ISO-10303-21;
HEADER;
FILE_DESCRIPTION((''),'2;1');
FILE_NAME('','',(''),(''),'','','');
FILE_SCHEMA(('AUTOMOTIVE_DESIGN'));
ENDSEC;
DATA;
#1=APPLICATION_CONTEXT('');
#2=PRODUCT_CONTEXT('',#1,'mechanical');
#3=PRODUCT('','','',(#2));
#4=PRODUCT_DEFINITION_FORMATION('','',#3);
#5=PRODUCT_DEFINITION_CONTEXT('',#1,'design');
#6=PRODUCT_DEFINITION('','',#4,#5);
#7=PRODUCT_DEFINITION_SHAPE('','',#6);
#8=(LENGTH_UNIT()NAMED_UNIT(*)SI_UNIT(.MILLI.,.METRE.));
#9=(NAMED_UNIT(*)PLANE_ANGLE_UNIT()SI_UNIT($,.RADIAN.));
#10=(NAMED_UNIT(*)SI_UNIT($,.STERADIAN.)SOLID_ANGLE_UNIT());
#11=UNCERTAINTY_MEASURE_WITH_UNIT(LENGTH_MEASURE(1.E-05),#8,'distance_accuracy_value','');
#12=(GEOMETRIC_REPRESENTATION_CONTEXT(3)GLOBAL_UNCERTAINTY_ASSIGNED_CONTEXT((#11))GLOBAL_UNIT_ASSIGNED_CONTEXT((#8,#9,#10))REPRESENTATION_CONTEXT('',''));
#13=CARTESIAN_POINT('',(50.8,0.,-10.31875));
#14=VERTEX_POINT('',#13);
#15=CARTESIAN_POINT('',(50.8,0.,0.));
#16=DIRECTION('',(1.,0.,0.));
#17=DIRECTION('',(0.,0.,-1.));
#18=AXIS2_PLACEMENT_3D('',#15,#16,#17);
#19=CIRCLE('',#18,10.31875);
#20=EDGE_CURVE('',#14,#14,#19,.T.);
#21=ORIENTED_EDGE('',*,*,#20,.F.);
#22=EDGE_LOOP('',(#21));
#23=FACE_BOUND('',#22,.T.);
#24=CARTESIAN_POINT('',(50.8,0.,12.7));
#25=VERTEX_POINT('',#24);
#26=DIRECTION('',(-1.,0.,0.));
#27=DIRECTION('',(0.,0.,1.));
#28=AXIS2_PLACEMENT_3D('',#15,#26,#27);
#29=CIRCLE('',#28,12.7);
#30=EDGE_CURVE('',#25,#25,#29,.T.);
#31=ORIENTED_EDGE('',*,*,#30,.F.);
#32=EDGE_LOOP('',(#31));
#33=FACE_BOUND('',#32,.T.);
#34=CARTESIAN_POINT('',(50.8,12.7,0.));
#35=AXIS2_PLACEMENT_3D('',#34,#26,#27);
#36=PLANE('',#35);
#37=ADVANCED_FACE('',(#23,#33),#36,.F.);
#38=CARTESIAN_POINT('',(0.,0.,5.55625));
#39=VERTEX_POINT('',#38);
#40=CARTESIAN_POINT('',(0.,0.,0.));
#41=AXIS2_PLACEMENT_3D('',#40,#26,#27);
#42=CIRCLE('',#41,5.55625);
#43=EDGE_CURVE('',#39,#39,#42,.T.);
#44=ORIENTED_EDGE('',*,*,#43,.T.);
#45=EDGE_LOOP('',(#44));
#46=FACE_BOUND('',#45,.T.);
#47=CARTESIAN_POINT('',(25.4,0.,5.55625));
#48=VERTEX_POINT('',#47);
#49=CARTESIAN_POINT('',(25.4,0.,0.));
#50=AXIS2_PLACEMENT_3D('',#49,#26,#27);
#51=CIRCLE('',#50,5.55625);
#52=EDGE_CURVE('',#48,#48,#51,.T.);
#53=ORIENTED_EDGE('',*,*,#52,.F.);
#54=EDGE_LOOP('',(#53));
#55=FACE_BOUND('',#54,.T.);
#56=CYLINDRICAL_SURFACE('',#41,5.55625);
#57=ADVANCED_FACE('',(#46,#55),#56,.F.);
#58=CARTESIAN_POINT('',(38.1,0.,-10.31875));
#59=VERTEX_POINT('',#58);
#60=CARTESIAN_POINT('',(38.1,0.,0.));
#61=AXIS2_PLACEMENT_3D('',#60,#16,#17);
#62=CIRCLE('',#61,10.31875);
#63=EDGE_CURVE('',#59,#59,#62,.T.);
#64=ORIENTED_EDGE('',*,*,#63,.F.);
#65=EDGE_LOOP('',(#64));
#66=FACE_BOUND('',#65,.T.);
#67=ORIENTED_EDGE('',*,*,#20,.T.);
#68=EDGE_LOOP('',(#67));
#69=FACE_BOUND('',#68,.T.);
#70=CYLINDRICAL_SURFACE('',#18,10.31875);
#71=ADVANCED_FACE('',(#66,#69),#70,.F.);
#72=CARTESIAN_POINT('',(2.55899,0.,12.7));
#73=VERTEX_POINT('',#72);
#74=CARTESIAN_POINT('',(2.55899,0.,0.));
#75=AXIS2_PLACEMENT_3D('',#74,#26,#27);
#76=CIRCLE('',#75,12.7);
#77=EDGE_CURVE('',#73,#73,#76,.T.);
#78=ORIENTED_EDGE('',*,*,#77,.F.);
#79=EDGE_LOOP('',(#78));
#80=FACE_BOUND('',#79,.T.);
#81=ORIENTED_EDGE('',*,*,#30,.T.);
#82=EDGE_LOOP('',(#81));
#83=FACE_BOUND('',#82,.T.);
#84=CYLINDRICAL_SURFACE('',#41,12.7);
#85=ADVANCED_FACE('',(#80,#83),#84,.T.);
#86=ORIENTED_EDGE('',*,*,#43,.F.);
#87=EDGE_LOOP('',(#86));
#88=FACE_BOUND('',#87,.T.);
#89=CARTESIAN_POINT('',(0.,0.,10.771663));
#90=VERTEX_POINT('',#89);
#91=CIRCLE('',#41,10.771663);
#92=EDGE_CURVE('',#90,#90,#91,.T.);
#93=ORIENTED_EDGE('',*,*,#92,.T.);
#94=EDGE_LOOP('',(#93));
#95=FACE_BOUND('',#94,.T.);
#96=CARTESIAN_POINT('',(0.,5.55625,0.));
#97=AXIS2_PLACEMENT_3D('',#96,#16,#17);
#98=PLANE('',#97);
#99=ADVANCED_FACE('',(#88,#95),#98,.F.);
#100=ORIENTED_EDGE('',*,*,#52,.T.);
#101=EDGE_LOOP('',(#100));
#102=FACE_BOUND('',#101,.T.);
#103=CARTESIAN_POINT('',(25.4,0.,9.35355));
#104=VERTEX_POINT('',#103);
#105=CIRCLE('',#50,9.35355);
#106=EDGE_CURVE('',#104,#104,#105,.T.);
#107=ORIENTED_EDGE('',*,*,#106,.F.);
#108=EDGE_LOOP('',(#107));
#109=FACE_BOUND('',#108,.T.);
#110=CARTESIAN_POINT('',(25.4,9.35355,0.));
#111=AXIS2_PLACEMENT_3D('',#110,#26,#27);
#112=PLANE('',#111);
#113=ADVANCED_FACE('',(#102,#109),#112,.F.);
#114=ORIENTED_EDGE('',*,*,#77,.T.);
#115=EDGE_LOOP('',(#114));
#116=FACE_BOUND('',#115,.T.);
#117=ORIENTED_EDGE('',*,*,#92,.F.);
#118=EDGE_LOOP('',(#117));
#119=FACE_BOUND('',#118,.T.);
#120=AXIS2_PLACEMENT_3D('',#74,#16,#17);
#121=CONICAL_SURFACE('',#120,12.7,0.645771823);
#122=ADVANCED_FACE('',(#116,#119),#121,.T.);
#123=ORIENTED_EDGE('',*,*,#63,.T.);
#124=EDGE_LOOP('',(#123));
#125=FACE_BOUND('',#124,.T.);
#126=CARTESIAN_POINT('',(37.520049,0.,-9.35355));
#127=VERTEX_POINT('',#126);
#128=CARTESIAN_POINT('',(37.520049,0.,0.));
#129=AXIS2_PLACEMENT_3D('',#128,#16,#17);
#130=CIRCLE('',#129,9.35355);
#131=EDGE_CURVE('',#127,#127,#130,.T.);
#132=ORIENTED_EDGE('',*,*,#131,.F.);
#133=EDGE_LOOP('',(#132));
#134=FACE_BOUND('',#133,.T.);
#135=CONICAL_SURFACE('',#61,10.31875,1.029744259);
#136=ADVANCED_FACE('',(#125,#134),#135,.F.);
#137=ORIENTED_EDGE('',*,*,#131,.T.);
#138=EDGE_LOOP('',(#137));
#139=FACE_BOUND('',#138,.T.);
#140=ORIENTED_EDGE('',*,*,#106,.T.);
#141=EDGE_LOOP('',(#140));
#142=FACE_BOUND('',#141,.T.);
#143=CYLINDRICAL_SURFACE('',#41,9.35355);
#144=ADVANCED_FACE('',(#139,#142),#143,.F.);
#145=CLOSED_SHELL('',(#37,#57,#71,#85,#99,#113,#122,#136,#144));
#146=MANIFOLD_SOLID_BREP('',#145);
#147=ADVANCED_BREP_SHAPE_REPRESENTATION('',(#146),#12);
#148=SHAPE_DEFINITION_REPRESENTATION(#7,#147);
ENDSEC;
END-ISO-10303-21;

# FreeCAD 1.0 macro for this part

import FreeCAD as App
import Part
import Sketcher
from FreeCAD import Vector
Q = App.Units.Quantity

doc = App.newDocument("Part")
body = doc.addObject("PartDesign::Body", "Body")

sketch1 = body.newObject("Sketcher::SketchObject", "Sketch")
sketch1.AttachmentSupport = (doc.getObject("XY_Plane"), [""])
sketch1.MapMode = "FlatFace"
sketch1.addGeometry([
    Part.LineSegment(Vector(2.55899, 12.7, 0), Vector(0, 10.771663, 0)),
    Part.LineSegment(Vector(0, 10.771663, 0), Vector(0, 5.55625, 0)),
    Part.LineSegment(Vector(0, 5.55625, 0), Vector(25.4, 5.55625, 0)),
    Part.LineSegment(Vector(25.4, 5.55625, 0), Vector(25.4, 9.35355, 0)),
    Part.LineSegment(Vector(25.4, 9.35355, 0), Vector(50.8, 9.35355, 0)),
    Part.LineSegment(Vector(50.8, 9.35355, 0), Vector(50.8, 12.7, 0)),
    Part.LineSegment(Vector(50.8, 12.7, 0), Vector(2.55899, 12.7, 0)),
], False)
sketch1.addConstraint([
    Sketcher.Constraint("Coincident", 0, 2, 1, 1),
    Sketcher.Constraint("Coincident", 1, 2, 2, 1),
    Sketcher.Constraint("Coincident", 2, 2, 3, 1),
    Sketcher.Constraint("Coincident", 3, 2, 4, 1),
    Sketcher.Constraint("Coincident", 4, 2, 5, 1),
    Sketcher.Constraint("Coincident", 5, 2, 6, 1),
    Sketcher.Constraint("Coincident", 6, 2, 0, 1),
    Sketcher.Constraint("Vertical", 1),
    Sketcher.Constraint("Horizontal", 2),
    Sketcher.Constraint("Vertical", 3),
    Sketcher.Constraint("Horizontal", 4),
    Sketcher.Constraint("Vertical", 5),
    Sketcher.Constraint("Horizontal", 6),
    Sketcher.Constraint("PointOnObject", 0, 2, -2),
    Sketcher.Constraint("Equal", 2, 4),
    Sketcher.Constraint("DistanceX", 2, 1, 2, 2, Q("1 in")),
    Sketcher.Constraint("Angle", 0, Q("-143 deg")),
    Sketcher.Constraint("DistanceY", -1, 1, 5, 2, Q("0.5 in")),
    Sketcher.Constraint("DistanceY", 3, 1, 3, 2, Q("0.1495 in")),
    Sketcher.Constraint("DistanceY", -1, 1, 1, 2, Q("0.21875 in")),
    Sketcher.Constraint("DistanceX", 6, 2, 6, 1, Q("48.24101 mm")),
])
revolution = body.newObject("PartDesign::Revolution", "Revolution")
revolution.Profile = sketch1
revolution.ReferenceAxis = (sketch1, ["H_Axis"])
revolution.Angle = 360

sketch2 = body.newObject("Sketcher::SketchObject", "Sketch001")
sketch2.AttachmentSupport = (doc.getObject("YZ_Plane"), [""])
sketch2.MapMode = "FlatFace"
sketch2.AttachmentOffset = App.Placement(Vector(0, 0, 2 * 25.4), App.Rotation())
sketch2.addGeometry(Part.Circle(Vector(0, 0, 0), Vector(0, 0, 1), 10.31875), False)
sketch2.addConstraint([
    Sketcher.Constraint("Coincident", 0, 3, -1, 1),
    Sketcher.Constraint("Diameter", 0, Q("0.8125 in")),
])
doc.recompute()
hole = body.newObject("PartDesign::Hole", "Hole")
hole.Profile = sketch2
hole.ThreadType = "None"
hole.Diameter = Q("0.8125 in")
hole.DepthType = "Dimension"
hole.Depth = Q("0.5 in")
hole.DrillPoint = "Angled"
hole.DrillPointAngle = 118

doc.recompute()
